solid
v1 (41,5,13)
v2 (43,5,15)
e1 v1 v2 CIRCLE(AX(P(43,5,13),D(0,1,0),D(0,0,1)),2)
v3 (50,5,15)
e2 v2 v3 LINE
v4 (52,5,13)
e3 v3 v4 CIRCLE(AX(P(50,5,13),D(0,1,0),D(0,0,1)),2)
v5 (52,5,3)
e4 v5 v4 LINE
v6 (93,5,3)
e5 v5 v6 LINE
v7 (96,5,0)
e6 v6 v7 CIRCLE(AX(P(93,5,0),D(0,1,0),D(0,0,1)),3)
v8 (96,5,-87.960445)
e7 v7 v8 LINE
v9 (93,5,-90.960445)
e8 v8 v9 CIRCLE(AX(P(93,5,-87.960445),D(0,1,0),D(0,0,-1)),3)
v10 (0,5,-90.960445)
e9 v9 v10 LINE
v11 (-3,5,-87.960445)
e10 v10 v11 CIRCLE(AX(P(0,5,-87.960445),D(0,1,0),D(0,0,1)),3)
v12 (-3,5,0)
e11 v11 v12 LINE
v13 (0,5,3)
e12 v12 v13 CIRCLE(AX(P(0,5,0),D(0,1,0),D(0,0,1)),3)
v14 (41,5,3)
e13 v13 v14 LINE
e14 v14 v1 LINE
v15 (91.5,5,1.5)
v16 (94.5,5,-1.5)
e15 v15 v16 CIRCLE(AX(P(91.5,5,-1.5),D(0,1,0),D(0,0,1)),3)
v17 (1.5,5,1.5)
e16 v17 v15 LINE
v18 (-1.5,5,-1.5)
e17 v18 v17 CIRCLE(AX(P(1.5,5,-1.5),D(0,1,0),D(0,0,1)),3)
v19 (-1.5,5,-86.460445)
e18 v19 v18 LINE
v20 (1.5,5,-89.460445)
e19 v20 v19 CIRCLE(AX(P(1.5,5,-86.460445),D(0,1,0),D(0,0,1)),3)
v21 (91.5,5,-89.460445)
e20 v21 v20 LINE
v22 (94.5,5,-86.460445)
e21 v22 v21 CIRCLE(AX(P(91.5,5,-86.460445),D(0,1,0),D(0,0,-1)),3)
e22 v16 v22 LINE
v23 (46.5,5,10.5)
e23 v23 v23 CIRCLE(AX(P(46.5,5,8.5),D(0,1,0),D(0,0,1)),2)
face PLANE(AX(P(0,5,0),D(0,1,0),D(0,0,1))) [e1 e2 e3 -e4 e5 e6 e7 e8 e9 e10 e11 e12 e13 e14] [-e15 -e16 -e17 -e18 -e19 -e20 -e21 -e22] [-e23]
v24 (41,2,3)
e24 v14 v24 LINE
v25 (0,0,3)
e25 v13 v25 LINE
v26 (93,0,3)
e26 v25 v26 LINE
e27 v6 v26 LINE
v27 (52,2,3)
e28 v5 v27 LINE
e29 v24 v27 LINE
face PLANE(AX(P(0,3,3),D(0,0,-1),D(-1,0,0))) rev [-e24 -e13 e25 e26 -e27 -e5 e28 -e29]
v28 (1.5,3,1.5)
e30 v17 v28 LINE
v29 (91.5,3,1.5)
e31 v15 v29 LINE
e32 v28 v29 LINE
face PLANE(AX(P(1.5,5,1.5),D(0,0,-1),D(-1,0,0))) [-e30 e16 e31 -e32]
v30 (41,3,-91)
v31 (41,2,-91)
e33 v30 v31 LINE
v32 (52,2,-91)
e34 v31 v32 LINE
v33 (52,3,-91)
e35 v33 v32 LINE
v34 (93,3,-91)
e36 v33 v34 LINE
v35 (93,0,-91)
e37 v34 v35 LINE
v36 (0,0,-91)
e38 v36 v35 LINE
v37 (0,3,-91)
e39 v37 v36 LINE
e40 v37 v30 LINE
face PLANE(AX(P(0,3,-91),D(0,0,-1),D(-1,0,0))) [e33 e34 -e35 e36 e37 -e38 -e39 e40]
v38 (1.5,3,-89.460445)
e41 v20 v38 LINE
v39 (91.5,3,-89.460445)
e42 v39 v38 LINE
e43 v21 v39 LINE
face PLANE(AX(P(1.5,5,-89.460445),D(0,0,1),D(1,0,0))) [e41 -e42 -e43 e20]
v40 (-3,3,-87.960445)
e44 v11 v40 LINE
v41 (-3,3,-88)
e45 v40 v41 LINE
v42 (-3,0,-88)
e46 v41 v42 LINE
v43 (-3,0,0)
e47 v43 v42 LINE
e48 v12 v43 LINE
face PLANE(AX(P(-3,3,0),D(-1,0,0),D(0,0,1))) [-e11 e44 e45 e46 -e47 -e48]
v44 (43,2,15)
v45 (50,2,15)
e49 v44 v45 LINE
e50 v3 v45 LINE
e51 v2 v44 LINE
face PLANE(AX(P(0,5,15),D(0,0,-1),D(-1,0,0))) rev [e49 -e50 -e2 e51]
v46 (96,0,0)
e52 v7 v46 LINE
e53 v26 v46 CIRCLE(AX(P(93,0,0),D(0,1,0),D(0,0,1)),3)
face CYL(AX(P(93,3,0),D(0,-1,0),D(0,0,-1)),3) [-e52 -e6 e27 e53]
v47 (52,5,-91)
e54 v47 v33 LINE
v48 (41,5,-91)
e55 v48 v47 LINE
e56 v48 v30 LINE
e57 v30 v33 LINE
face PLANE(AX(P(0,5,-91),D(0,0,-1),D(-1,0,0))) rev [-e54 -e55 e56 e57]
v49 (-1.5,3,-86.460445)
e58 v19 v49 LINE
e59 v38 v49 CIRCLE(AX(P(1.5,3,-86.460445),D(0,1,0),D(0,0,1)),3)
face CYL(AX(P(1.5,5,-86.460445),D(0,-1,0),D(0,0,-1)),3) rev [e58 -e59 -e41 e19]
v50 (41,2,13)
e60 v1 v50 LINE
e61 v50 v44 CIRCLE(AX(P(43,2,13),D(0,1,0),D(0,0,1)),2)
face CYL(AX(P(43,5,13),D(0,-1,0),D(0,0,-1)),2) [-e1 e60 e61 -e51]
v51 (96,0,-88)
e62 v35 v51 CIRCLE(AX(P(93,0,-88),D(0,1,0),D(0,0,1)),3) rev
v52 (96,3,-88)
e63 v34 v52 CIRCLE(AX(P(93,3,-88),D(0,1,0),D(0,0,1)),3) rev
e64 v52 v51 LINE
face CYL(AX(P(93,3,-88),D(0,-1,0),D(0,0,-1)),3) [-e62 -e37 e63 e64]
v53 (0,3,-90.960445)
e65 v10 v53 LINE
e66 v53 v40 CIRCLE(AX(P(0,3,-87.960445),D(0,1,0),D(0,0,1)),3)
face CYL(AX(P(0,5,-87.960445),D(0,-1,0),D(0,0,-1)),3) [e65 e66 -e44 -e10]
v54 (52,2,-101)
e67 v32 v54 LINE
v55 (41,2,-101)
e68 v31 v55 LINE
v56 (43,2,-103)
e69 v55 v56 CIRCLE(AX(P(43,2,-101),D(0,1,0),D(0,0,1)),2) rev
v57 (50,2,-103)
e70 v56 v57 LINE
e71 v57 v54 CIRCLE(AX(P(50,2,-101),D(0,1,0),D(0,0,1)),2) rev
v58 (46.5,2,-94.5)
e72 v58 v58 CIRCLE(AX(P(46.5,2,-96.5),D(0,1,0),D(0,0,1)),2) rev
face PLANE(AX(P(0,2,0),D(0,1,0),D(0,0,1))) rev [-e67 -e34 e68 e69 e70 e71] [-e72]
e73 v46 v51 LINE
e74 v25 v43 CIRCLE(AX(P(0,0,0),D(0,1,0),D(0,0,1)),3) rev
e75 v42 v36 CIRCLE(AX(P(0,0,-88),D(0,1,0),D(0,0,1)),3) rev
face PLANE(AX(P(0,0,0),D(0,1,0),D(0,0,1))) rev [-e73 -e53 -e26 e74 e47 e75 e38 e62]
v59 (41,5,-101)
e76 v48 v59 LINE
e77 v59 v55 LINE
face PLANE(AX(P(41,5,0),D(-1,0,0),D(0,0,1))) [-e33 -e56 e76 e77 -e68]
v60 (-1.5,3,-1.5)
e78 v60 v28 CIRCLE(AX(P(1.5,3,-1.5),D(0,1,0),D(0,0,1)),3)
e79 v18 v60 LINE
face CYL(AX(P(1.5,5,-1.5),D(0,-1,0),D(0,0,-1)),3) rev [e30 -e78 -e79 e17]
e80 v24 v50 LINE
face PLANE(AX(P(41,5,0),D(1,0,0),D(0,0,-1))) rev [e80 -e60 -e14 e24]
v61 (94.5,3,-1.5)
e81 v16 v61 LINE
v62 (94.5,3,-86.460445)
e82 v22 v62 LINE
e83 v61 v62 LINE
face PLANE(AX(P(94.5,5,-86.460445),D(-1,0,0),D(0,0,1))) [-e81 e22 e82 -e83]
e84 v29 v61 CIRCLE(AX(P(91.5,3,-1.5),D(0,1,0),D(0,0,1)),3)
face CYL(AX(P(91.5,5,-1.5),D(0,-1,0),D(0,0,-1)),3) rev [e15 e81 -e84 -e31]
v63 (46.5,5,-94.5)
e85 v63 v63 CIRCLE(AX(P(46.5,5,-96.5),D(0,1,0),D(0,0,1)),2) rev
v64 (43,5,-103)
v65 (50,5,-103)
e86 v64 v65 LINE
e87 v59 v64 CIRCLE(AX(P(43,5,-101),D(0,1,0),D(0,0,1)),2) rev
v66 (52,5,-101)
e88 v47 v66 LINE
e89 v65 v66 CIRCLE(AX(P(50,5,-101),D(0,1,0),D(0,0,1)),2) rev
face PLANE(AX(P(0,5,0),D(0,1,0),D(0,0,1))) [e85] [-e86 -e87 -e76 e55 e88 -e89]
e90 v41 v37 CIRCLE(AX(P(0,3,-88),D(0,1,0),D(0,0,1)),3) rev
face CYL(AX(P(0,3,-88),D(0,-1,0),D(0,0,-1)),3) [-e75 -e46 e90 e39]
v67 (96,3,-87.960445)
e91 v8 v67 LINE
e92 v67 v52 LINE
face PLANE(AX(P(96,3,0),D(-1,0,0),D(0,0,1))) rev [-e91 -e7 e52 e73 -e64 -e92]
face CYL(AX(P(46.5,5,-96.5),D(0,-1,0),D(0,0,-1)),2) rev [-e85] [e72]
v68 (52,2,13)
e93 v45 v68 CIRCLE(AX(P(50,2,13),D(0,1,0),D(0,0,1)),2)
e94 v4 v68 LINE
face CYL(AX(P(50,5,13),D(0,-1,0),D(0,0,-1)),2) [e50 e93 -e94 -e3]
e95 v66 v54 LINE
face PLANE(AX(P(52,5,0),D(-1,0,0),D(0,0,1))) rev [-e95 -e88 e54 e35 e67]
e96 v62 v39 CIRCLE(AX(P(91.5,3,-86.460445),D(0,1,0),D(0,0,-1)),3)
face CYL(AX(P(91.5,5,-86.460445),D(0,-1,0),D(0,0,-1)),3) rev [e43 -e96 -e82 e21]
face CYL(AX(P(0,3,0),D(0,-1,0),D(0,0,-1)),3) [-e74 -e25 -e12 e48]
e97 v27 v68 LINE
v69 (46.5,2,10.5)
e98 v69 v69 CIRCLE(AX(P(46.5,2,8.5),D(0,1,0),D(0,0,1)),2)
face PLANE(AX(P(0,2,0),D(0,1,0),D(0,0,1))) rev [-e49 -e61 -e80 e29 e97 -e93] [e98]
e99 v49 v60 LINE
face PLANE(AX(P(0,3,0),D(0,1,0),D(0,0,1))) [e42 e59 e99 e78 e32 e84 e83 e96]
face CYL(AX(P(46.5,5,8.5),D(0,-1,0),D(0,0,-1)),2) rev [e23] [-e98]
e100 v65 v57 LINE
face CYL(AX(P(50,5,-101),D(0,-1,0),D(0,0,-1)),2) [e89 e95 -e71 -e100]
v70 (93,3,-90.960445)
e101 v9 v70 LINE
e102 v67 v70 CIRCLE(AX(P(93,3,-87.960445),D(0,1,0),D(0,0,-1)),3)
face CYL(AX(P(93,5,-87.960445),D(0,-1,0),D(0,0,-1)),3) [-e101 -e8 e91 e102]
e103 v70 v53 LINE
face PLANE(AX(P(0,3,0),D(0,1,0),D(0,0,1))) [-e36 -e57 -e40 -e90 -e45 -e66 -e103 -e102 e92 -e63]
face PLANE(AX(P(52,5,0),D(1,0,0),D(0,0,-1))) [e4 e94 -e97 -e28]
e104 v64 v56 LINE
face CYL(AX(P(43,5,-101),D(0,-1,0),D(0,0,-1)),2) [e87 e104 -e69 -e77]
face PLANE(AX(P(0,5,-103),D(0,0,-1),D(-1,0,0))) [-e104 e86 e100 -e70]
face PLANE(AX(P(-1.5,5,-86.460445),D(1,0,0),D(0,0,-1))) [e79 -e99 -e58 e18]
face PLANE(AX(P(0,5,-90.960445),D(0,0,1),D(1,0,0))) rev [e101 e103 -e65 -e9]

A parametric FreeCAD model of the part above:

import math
import FreeCAD as App
import Part
import Sketcher

V = App.Vector
Q = App.Units.Quantity

doc = App.newDocument("Part")
params = doc.addObject("Spreadsheet::Sheet", "Params")
for row, (alias, value) in enumerate([
    ("sketch1_radius", "3 mm"),
    ("sketch1_width", "93 mm"),
    ("sketch1_height", "88 mm"),
    ("pad1_length", "3 mm"),
    ("sketch2_diameter", "4 mm"),
    ("sketch2_width", "11 mm"),
    ("sketch2_height", "10 mm"),
    ("pad2_length", "3 mm"),
    ("sketch3_radius", "3 mm"),
    ("sketch3_width", "93 mm"),
    ("sketch3_width2", "90 mm"),
    ("pad3_length", "2 mm"),
], start=1):
    params.set(f"A{row}", alias)
    params.set(f"B{row}", "=" + value)
    params.setAlias(f"B{row}", alias)

body = doc.addObject("PartDesign::Body", "Body")

sketch1 = body.newObject("Sketcher::SketchObject", "Sketch")
sketch1.AttachmentSupport = (doc.getObject("XZ_Plane"), [""])
sketch1.MapMode = "FlatFace"
sketch1.addGeometry(Part.ArcOfCircle(Part.Circle(V(0, 0, 0), V(0, 0, 1), 3), math.radians(90), math.radians(180)), False)
sketch1.addGeometry(Part.LineSegment(V(0, 3, 0), V(93, 3, 0)), False)
sketch1.addGeometry(Part.ArcOfCircle(Part.Circle(V(93, 0, 0), V(0, 0, 1), 3), math.radians(0), math.radians(90)), False)
sketch1.addGeometry(Part.LineSegment(V(96, 0, 0), V(96, -88, 0)), False)
sketch1.addGeometry(Part.ArcOfCircle(Part.Circle(V(93, -88, 0), V(0, 0, 1), 3), math.radians(-90), math.radians(0)), False)
sketch1.addGeometry(Part.LineSegment(V(93, -91, 0), V(0, -91, 0)), False)
sketch1.addGeometry(Part.ArcOfCircle(Part.Circle(V(0, -88, 0), V(0, 0, 1), 3), math.radians(180), math.radians(270)), False)
sketch1.addGeometry(Part.LineSegment(V(-3, -88, 0), V(-3, 0, 0)), False)
sketch1.addConstraint(Sketcher.Constraint("Tangent", 0, 1, 1, 1))
sketch1.addConstraint(Sketcher.Constraint("Tangent", 1, 2, 2, 2))
sketch1.addConstraint(Sketcher.Constraint("Tangent", 2, 1, 3, 1))
sketch1.addConstraint(Sketcher.Constraint("Tangent", 3, 2, 4, 2))
sketch1.addConstraint(Sketcher.Constraint("Tangent", 4, 1, 5, 1))
sketch1.addConstraint(Sketcher.Constraint("Tangent", 5, 2, 6, 2))
sketch1.addConstraint(Sketcher.Constraint("Tangent", 6, 1, 7, 1))
sketch1.addConstraint(Sketcher.Constraint("Tangent", 7, 2, 0, 2))
sketch1.addConstraint(Sketcher.Constraint("Horizontal", 1))
sketch1.addConstraint(Sketcher.Constraint("Vertical", 3))
sketch1.addConstraint(Sketcher.Constraint("Horizontal", 5))
sketch1.addConstraint(Sketcher.Constraint("Vertical", 7))
sketch1.addConstraint(Sketcher.Constraint("Coincident", 0, 3, -1, 1))
sketch1.addConstraint(Sketcher.Constraint("Equal", 0, 2))
sketch1.addConstraint(Sketcher.Constraint("Equal", 2, 4))
sketch1.addConstraint(Sketcher.Constraint("Equal", 4, 6))
sketch1.addConstraint(Sketcher.Constraint("Radius", 0, Q("3 mm")))
sketch1.addConstraint(Sketcher.Constraint("DistanceX", 1, 1, 1, 2, Q("93 mm")))
sketch1.addConstraint(Sketcher.Constraint("DistanceY", 3, 2, 3, 1, Q("88 mm")))
sketch1.setExpression("Constraints[16]", "Params.sketch1_radius")
sketch1.setExpression("Constraints[17]", "Params.sketch1_width")
sketch1.setExpression("Constraints[18]", "Params.sketch1_height")
pad1 = body.newObject("PartDesign::Pad", "Pad")
pad1.Profile = sketch1
pad1.setExpression("Length", "Params.pad1_length")
pad1.Reversed = True

sketch2 = body.newObject("Sketcher::SketchObject", "Sketch001")
sketch2.AttachmentSupport = (doc.getObject("XZ_Plane"), [""])
sketch2.MapMode = "FlatFace"
sketch2.AttachmentOffset = App.Placement(V(0, 0, -2), App.Rotation())
sketch2.addGeometry(Part.LineSegment(V(52, 3, 0), V(41, 3, 0)), False)
sketch2.addGeometry(Part.LineSegment(V(41, 3, 0), V(41, 13, 0)), False)
sketch2.addGeometry(Part.ArcOfCircle(Part.Circle(V(43, 13, 0), V(0, 0, 1), 2), math.radians(90), math.radians(180)), False)
sketch2.addGeometry(Part.LineSegment(V(43, 15, 0), V(50, 15, 0)), False)
sketch2.addGeometry(Part.ArcOfCircle(Part.Circle(V(50, 13, 0), V(0, 0, 1), 2), math.radians(0), math.radians(90)), False)
sketch2.addGeometry(Part.LineSegment(V(52, 13, 0), V(52, 3, 0)), False)
sketch2.addGeometry(Part.Circle(V(46.5, 8.5, 0), V(0, 0, 1), 2), False)
sketch2.addGeometry(Part.LineSegment(V(41, -101, 0), V(41, -91, 0)), False)
sketch2.addGeometry(Part.LineSegment(V(41, -91, 0), V(52, -91, 0)), False)
sketch2.addGeometry(Part.LineSegment(V(52, -91, 0), V(52, -101, 0)), False)
sketch2.addGeometry(Part.ArcOfCircle(Part.Circle(V(50, -101, 0), V(0, 0, 1), 2), math.radians(-90), math.radians(0)), False)
sketch2.addGeometry(Part.LineSegment(V(50, -103, 0), V(43, -103, 0)), False)
sketch2.addGeometry(Part.ArcOfCircle(Part.Circle(V(43, -101, 0), V(0, 0, 1), 2), math.radians(-180), math.radians(-90)), False)
sketch2.addGeometry(Part.Circle(V(46.5, -96.5, 0), V(0, 0, 1), 2), False)
sketch2.addConstraint(Sketcher.Constraint("Coincident", 0, 2, 1, 1))
sketch2.addConstraint(Sketcher.Constraint("Tangent", 1, 2, 2, 2))
sketch2.addConstraint(Sketcher.Constraint("Tangent", 2, 1, 3, 1))
sketch2.addConstraint(Sketcher.Constraint("Tangent", 3, 2, 4, 2))
sketch2.addConstraint(Sketcher.Constraint("Tangent", 4, 1, 5, 1))
sketch2.addConstraint(Sketcher.Constraint("Coincident", 5, 2, 0, 1))
sketch2.addConstraint(Sketcher.Constraint("Coincident", 7, 2, 8, 1))
sketch2.addConstraint(Sketcher.Constraint("Coincident", 8, 2, 9, 1))
sketch2.addConstraint(Sketcher.Constraint("Tangent", 9, 2, 10, 2))
sketch2.addConstraint(Sketcher.Constraint("Tangent", 10, 1, 11, 1))
sketch2.addConstraint(Sketcher.Constraint("Tangent", 11, 2, 12, 2))
sketch2.addConstraint(Sketcher.Constraint("Tangent", 12, 1, 7, 1))
sketch2.addConstraint(Sketcher.Constraint("Horizontal", 0))
sketch2.addConstraint(Sketcher.Constraint("Vertical", 1))
sketch2.addConstraint(Sketcher.Constraint("Horizontal", 3))
sketch2.addConstraint(Sketcher.Constraint("Vertical", 5))
sketch2.addConstraint(Sketcher.Constraint("Vertical", 7))
sketch2.addConstraint(Sketcher.Constraint("Horizontal", 8))
sketch2.addConstraint(Sketcher.Constraint("Vertical", 9))
sketch2.addConstraint(Sketcher.Constraint("Horizontal", 11))
sketch2.addConstraint(Sketcher.Constraint("Equal", 2, 4))
sketch2.addConstraint(Sketcher.Constraint("Equal", 4, 6))
sketch2.addConstraint(Sketcher.Constraint("Equal", 6, 10))
sketch2.addConstraint(Sketcher.Constraint("Equal", 10, 12))
sketch2.addConstraint(Sketcher.Constraint("Equal", 12, 13))
sketch2.addConstraint(Sketcher.Constraint("Vertical", 4, 3, 10, 3))
sketch2.addConstraint(Sketcher.Constraint("Vertical", 2, 3, 12, 3))
sketch2.addConstraint(Sketcher.Constraint("Vertical", 6, 3, 13, 3))
sketch2.addConstraint(Sketcher.Constraint("Equal", 5, 7))
sketch2.addConstraint(Sketcher.Constraint("Diameter", 6, Q("4 mm")))
sketch2.addConstraint(Sketcher.Constraint("DistanceX", 0, 2, 0, 1, Q("11 mm")))
sketch2.addConstraint(Sketcher.Constraint("DistanceY", 1, 1, 1, 2, Q("10 mm")))
sketch2.addConstraint(Sketcher.Constraint("DistanceX", -1, 1, 2, 3, Q("43 mm")))
sketch2.addConstraint(Sketcher.Constraint("DistanceY", -1, 1, 2, 3, Q("13 mm")))
sketch2.addConstraint(Sketcher.Constraint("DistanceY", 10, 3, -1, 1, Q("101 mm")))
sketch2.addConstraint(Sketcher.Constraint("DistanceY", 13, 3, 6, 3, Q("105 mm")))
sketch2.addConstraint(Sketcher.Constraint("DistanceX", -1, 1, 6, 3, Q("46.5 mm")))
sketch2.addConstraint(Sketcher.Constraint("DistanceY", -1, 1, 6, 3, Q("8.5 mm")))
sketch2.setExpression("Constraints[29]", "Params.sketch2_diameter")
sketch2.setExpression("Constraints[30]", "Params.sketch2_width")
sketch2.setExpression("Constraints[31]", "Params.sketch2_height")
pad2 = body.newObject("PartDesign::Pad", "Pad001")
pad2.Profile = sketch2
pad2.setExpression("Length", "Params.pad2_length")
pad2.Reversed = True

sketch3 = body.newObject("Sketcher::SketchObject", "Sketch002")
sketch3.AttachmentSupport = (doc.getObject("XZ_Plane"), [""])
sketch3.MapMode = "FlatFace"
sketch3.AttachmentOffset = App.Placement(V(0, 0, -3), App.Rotation())
sketch3.addGeometry(Part.LineSegment(V(93, -91, 0), V(0, -91, 0)), False)
sketch3.addGeometry(Part.ArcOfCircle(Part.Circle(V(0, -88, 0), V(0, 0, 1), 3), math.radians(180), math.radians(270)), False)
sketch3.addGeometry(Part.LineSegment(V(-3, -88, 0), V(-3, 0, 0)), False)
sketch3.addGeometry(Part.ArcOfCircle(Part.Circle(V(0, 0, 0), V(0, 0, 1), 3), math.radians(90), math.radians(180)), False)
sketch3.addGeometry(Part.LineSegment(V(0, 3, 0), V(93, 3, 0)), False)
sketch3.addGeometry(Part.ArcOfCircle(Part.Circle(V(93, 0, 0), V(0, 0, 1), 3), math.radians(0), math.radians(90)), False)
sketch3.addGeometry(Part.LineSegment(V(96, 0, 0), V(96, -88, 0)), False)
sketch3.addGeometry(Part.ArcOfCircle(Part.Circle(V(93, -88, 0), V(0, 0, 1), 3), math.radians(-90), math.radians(0)), False)
sketch3.addGeometry(Part.LineSegment(V(1.5, -89.5, 0), V(91.5, -89.5, 0)), False)
sketch3.addGeometry(Part.ArcOfCircle(Part.Circle(V(91.5, -86.5, 0), V(0, 0, 1), 3), math.radians(-90), math.radians(0)), False)
sketch3.addGeometry(Part.LineSegment(V(94.5, -86.5, 0), V(94.5, -1.5, 0)), False)
sketch3.addGeometry(Part.ArcOfCircle(Part.Circle(V(91.5, -1.5, 0), V(0, 0, 1), 3), math.radians(0), math.radians(90)), False)
sketch3.addGeometry(Part.LineSegment(V(91.5, 1.5, 0), V(1.5, 1.5, 0)), False)
sketch3.addGeometry(Part.ArcOfCircle(Part.Circle(V(1.5, -1.5, 0), V(0, 0, 1), 3), math.radians(90), math.radians(180)), False)
sketch3.addGeometry(Part.LineSegment(V(-1.5, -1.5, 0), V(-1.5, -86.5, 0)), False)
sketch3.addGeometry(Part.ArcOfCircle(Part.Circle(V(1.5, -86.5, 0), V(0, 0, 1), 3), math.radians(180), math.radians(270)), False)
sketch3.addConstraint(Sketcher.Constraint("Tangent", 0, 2, 1, 2))
sketch3.addConstraint(Sketcher.Constraint("Tangent", 1, 1, 2, 1))
sketch3.addConstraint(Sketcher.Constraint("Tangent", 2, 2, 3, 2))
sketch3.addConstraint(Sketcher.Constraint("Tangent", 3, 1, 4, 1))
sketch3.addConstraint(Sketcher.Constraint("Tangent", 4, 2, 5, 2))
sketch3.addConstraint(Sketcher.Constraint("Tangent", 5, 1, 6, 1))
sketch3.addConstraint(Sketcher.Constraint("Tangent", 6, 2, 7, 2))
sketch3.addConstraint(Sketcher.Constraint("Tangent", 7, 1, 0, 1))
sketch3.addConstraint(Sketcher.Constraint("Tangent", 8, 2, 9, 1))
sketch3.addConstraint(Sketcher.Constraint("Tangent", 9, 2, 10, 1))
sketch3.addConstraint(Sketcher.Constraint("Tangent", 10, 2, 11, 1))
sketch3.addConstraint(Sketcher.Constraint("Tangent", 11, 2, 12, 1))
sketch3.addConstraint(Sketcher.Constraint("Tangent", 12, 2, 13, 1))
sketch3.addConstraint(Sketcher.Constraint("Tangent", 13, 2, 14, 1))
sketch3.addConstraint(Sketcher.Constraint("Tangent", 14, 2, 15, 1))
sketch3.addConstraint(Sketcher.Constraint("Tangent", 15, 2, 8, 1))
sketch3.addConstraint(Sketcher.Constraint("Horizontal", 0))
sketch3.addConstraint(Sketcher.Constraint("Vertical", 2))
sketch3.addConstraint(Sketcher.Constraint("Horizontal", 4))
sketch3.addConstraint(Sketcher.Constraint("Vertical", 6))
sketch3.addConstraint(Sketcher.Constraint("Horizontal", 8))
sketch3.addConstraint(Sketcher.Constraint("Vertical", 10))
sketch3.addConstraint(Sketcher.Constraint("Horizontal", 12))
sketch3.addConstraint(Sketcher.Constraint("Vertical", 14))
sketch3.addConstraint(Sketcher.Constraint("Coincident", 3, 3, -1, 1))
sketch3.addConstraint(Sketcher.Constraint("Equal", 1, 3))
sketch3.addConstraint(Sketcher.Constraint("Equal", 3, 5))
sketch3.addConstraint(Sketcher.Constraint("Equal", 5, 7))
sketch3.addConstraint(Sketcher.Constraint("Equal", 7, 9))
sketch3.addConstraint(Sketcher.Constraint("Equal", 9, 11))
sketch3.addConstraint(Sketcher.Constraint("Equal", 11, 13))
sketch3.addConstraint(Sketcher.Constraint("Equal", 13, 15))
sketch3.addConstraint(Sketcher.Constraint("Symmetric", 12, 2, 13, 2, -1, 1))
sketch3.addConstraint(Sketcher.Constraint("Radius", 1, Q("3 mm")))
sketch3.addConstraint(Sketcher.Constraint("DistanceX", 0, 2, 0, 1, Q("93 mm")))
sketch3.addConstraint(Sketcher.Constraint("DistanceX", 8, 1, 8, 2, Q("90 mm")))
sketch3.addConstraint(Sketcher.Constraint("DistanceY", 7, 3, 9, 3, Q("1.5 mm")))
sketch3.addConstraint(Sketcher.Constraint("DistanceY", 2, 1, 2, 2, Q("87.960445 mm")))
sketch3.setExpression("Constraints[33]", "Params.sketch3_radius")
sketch3.setExpression("Constraints[34]", "Params.sketch3_width")
sketch3.setExpression("Constraints[35]", "Params.sketch3_width2")
pad3 = body.newObject("PartDesign::Pad", "Pad002")
pad3.Profile = sketch3
pad3.setExpression("Length", "Params.pad3_length")
pad3.Reversed = True

doc.recompute()
